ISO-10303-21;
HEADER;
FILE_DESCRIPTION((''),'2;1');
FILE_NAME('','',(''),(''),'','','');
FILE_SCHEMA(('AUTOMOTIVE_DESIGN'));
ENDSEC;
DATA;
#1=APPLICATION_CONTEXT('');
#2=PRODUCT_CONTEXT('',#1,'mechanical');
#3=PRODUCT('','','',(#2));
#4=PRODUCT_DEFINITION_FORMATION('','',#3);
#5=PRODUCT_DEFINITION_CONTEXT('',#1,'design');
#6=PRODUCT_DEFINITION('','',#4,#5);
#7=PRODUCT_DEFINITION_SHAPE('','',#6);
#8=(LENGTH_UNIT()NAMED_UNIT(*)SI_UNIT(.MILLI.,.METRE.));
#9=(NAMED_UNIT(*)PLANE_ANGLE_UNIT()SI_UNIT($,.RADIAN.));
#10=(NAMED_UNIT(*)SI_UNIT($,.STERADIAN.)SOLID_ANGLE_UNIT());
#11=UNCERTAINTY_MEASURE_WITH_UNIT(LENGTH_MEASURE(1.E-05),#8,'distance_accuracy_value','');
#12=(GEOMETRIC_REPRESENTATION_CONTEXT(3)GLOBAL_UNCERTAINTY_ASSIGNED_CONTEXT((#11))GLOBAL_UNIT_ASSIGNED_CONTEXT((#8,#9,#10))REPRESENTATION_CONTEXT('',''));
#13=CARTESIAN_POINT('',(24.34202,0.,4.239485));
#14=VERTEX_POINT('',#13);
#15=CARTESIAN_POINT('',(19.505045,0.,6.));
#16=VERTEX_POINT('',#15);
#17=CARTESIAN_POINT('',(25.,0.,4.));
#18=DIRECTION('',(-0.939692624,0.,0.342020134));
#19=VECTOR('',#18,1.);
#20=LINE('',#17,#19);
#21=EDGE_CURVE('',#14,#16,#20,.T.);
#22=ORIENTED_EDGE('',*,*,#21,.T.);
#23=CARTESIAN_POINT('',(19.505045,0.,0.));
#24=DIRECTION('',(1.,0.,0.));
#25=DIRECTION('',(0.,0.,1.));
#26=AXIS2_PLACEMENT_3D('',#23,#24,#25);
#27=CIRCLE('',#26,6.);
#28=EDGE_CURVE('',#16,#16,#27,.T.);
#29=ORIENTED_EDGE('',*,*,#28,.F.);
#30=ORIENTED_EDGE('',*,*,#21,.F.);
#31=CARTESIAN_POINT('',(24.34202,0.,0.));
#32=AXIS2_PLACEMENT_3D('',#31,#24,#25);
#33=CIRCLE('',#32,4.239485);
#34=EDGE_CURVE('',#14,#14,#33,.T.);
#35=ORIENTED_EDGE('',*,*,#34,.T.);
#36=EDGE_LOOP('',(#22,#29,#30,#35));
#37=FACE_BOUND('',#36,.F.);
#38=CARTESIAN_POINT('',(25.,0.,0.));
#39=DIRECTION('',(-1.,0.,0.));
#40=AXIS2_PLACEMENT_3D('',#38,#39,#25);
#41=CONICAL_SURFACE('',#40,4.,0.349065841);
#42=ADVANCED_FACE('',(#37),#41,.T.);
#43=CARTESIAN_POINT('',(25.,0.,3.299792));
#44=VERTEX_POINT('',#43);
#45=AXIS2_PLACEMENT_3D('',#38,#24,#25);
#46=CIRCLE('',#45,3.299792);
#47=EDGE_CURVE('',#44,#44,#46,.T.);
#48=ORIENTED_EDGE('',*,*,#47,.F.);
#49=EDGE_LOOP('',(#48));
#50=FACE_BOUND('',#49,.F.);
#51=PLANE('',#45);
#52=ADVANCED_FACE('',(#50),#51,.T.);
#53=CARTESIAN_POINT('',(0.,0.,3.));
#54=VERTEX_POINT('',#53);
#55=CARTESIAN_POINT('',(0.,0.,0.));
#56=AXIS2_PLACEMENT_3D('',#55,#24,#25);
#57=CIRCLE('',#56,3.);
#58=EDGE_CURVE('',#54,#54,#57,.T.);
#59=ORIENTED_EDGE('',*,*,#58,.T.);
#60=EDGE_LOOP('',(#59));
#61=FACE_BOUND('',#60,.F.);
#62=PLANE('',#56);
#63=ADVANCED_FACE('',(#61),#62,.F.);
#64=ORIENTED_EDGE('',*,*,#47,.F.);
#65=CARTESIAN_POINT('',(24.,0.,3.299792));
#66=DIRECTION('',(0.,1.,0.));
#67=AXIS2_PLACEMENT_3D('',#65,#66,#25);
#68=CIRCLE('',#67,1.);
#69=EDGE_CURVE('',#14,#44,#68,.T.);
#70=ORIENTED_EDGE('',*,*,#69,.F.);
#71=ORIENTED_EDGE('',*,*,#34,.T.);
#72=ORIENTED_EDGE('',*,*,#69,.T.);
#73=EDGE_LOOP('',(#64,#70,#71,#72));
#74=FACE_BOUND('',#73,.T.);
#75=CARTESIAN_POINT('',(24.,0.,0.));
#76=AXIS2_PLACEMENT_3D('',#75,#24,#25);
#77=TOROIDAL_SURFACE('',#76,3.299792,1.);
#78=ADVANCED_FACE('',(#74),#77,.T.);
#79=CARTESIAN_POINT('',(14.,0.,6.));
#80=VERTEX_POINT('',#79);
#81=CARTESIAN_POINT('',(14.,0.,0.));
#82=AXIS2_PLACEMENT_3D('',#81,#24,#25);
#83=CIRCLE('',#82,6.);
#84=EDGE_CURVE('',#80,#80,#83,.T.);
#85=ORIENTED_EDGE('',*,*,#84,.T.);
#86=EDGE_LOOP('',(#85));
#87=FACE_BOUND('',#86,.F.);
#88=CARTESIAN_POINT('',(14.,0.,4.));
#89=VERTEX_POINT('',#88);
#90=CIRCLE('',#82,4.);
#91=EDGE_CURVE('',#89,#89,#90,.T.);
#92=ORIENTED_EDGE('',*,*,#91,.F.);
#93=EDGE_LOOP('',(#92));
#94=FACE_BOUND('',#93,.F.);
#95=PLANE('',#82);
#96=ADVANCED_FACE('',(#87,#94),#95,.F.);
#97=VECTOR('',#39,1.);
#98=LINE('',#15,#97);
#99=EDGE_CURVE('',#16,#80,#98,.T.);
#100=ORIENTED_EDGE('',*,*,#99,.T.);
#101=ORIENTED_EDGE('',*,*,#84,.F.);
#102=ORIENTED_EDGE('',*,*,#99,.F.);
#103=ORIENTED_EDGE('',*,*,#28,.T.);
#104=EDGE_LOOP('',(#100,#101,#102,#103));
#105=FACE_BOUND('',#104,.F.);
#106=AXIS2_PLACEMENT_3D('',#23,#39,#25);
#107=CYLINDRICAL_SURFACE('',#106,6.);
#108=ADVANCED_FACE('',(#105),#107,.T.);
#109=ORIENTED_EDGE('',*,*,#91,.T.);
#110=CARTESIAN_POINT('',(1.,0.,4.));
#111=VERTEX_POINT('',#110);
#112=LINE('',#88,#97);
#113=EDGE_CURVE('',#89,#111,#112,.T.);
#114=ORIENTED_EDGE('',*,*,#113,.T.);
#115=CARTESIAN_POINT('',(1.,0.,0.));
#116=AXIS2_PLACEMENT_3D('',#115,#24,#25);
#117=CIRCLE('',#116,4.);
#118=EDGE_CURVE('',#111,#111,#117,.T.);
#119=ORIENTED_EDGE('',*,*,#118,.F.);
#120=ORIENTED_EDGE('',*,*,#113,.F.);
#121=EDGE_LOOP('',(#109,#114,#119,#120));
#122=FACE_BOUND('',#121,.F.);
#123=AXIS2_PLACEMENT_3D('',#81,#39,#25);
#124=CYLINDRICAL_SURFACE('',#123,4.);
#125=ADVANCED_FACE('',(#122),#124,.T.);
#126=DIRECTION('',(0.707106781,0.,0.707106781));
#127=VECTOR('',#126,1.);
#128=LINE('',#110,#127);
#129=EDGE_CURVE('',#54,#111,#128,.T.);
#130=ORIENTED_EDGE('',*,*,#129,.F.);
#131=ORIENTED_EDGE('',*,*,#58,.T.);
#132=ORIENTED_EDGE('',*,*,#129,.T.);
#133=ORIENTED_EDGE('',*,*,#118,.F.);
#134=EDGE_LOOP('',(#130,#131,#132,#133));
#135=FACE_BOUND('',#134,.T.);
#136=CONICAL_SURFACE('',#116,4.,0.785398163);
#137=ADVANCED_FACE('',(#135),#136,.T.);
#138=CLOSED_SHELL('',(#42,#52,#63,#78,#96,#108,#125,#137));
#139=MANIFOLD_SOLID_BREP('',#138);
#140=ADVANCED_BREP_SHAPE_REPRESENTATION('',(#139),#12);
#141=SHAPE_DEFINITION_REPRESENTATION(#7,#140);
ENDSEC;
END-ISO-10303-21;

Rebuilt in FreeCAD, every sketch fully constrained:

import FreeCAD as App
import Part
import Sketcher
from FreeCAD import Vector
Q = App.Units.Quantity


def edges_at(feature, points):
    """Names of the edges that pass closest to the given points."""
    edges = feature.Shape.Edges
    near = lambda p: min(range(len(edges)), key=lambda i: edges[i].distToShape(Part.Vertex(*p))[0])
    return sorted({f"Edge{near(p) + 1}" for p in points})


def add_polygon(sketch, points):
    """Adds a closed chain of lines whose ends are joined by coincident constraints."""
    first, n = sketch.GeometryCount, len(points)
    for a, b in zip(points, points[1:] + points[:1]):
        sketch.addGeometry(Part.LineSegment(App.Vector(*a, 0), App.Vector(*b, 0)), False)
    for i in range(n):
        sketch.addConstraint(Sketcher.Constraint("Coincident", first + i, 2, first + (i + 1) % n, 1))

doc = App.newDocument("Part")
body = doc.addObject("PartDesign::Body", "Body")

# Sketch on XZ plane
sketch1 = body.newObject("Sketcher::SketchObject", "Sketch")
sketch1.AttachmentSupport = (doc.getObject("XZ_Plane"), [""])
sketch1.MapMode = "FlatFace"
add_polygon(sketch1, [(0, 4), (0, 0), (25, 0), (25, 4), (19.5, 6), (14, 6), (14, 4)])  # lines 0-6
sketch1.addConstraint([
    Sketcher.Constraint("Vertical", 0),
    Sketcher.Constraint("Horizontal", 1),
    Sketcher.Constraint("Vertical", 2),
    Sketcher.Constraint("Horizontal", 4),
    Sketcher.Constraint("Vertical", 5),
    Sketcher.Constraint("Horizontal", 6),
    Sketcher.Constraint("Coincident", 0, 2, -1, 1),
    Sketcher.Constraint("Horizontal", 2, 2, 5, 2),
    Sketcher.Constraint("DistanceX", 1, 1, 1, 2, 25.0),
    Sketcher.Constraint("DistanceX", 6, 2, 6, 1, 14.0),
    Sketcher.Constraint("DistanceY", 0, 2, 0, 1, 4.0),
    Sketcher.Constraint("DistanceY", 5, 2, 5, 1, 2.0),
    Sketcher.Constraint("Angle", 3, Q("160.000001 deg")),
])
revolution = body.newObject("PartDesign::Revolution", "Revolution")
revolution.Profile = sketch1
revolution.ReferenceAxis = (sketch1, ["H_Axis"])
revolution.Angle = 360
doc.recompute()

chamfer = body.newObject("PartDesign::Chamfer", "Chamfer")
chamfer.Base = (revolution, edges_at(revolution, [(0, 0, -4)]))
chamfer.Size = 1
doc.recompute()

fillet = body.newObject("PartDesign::Fillet", "Fillet")
fillet.Base = (chamfer, edges_at(chamfer, [(25, 0, -4)]))
fillet.Radius = 1

doc.recompute()
